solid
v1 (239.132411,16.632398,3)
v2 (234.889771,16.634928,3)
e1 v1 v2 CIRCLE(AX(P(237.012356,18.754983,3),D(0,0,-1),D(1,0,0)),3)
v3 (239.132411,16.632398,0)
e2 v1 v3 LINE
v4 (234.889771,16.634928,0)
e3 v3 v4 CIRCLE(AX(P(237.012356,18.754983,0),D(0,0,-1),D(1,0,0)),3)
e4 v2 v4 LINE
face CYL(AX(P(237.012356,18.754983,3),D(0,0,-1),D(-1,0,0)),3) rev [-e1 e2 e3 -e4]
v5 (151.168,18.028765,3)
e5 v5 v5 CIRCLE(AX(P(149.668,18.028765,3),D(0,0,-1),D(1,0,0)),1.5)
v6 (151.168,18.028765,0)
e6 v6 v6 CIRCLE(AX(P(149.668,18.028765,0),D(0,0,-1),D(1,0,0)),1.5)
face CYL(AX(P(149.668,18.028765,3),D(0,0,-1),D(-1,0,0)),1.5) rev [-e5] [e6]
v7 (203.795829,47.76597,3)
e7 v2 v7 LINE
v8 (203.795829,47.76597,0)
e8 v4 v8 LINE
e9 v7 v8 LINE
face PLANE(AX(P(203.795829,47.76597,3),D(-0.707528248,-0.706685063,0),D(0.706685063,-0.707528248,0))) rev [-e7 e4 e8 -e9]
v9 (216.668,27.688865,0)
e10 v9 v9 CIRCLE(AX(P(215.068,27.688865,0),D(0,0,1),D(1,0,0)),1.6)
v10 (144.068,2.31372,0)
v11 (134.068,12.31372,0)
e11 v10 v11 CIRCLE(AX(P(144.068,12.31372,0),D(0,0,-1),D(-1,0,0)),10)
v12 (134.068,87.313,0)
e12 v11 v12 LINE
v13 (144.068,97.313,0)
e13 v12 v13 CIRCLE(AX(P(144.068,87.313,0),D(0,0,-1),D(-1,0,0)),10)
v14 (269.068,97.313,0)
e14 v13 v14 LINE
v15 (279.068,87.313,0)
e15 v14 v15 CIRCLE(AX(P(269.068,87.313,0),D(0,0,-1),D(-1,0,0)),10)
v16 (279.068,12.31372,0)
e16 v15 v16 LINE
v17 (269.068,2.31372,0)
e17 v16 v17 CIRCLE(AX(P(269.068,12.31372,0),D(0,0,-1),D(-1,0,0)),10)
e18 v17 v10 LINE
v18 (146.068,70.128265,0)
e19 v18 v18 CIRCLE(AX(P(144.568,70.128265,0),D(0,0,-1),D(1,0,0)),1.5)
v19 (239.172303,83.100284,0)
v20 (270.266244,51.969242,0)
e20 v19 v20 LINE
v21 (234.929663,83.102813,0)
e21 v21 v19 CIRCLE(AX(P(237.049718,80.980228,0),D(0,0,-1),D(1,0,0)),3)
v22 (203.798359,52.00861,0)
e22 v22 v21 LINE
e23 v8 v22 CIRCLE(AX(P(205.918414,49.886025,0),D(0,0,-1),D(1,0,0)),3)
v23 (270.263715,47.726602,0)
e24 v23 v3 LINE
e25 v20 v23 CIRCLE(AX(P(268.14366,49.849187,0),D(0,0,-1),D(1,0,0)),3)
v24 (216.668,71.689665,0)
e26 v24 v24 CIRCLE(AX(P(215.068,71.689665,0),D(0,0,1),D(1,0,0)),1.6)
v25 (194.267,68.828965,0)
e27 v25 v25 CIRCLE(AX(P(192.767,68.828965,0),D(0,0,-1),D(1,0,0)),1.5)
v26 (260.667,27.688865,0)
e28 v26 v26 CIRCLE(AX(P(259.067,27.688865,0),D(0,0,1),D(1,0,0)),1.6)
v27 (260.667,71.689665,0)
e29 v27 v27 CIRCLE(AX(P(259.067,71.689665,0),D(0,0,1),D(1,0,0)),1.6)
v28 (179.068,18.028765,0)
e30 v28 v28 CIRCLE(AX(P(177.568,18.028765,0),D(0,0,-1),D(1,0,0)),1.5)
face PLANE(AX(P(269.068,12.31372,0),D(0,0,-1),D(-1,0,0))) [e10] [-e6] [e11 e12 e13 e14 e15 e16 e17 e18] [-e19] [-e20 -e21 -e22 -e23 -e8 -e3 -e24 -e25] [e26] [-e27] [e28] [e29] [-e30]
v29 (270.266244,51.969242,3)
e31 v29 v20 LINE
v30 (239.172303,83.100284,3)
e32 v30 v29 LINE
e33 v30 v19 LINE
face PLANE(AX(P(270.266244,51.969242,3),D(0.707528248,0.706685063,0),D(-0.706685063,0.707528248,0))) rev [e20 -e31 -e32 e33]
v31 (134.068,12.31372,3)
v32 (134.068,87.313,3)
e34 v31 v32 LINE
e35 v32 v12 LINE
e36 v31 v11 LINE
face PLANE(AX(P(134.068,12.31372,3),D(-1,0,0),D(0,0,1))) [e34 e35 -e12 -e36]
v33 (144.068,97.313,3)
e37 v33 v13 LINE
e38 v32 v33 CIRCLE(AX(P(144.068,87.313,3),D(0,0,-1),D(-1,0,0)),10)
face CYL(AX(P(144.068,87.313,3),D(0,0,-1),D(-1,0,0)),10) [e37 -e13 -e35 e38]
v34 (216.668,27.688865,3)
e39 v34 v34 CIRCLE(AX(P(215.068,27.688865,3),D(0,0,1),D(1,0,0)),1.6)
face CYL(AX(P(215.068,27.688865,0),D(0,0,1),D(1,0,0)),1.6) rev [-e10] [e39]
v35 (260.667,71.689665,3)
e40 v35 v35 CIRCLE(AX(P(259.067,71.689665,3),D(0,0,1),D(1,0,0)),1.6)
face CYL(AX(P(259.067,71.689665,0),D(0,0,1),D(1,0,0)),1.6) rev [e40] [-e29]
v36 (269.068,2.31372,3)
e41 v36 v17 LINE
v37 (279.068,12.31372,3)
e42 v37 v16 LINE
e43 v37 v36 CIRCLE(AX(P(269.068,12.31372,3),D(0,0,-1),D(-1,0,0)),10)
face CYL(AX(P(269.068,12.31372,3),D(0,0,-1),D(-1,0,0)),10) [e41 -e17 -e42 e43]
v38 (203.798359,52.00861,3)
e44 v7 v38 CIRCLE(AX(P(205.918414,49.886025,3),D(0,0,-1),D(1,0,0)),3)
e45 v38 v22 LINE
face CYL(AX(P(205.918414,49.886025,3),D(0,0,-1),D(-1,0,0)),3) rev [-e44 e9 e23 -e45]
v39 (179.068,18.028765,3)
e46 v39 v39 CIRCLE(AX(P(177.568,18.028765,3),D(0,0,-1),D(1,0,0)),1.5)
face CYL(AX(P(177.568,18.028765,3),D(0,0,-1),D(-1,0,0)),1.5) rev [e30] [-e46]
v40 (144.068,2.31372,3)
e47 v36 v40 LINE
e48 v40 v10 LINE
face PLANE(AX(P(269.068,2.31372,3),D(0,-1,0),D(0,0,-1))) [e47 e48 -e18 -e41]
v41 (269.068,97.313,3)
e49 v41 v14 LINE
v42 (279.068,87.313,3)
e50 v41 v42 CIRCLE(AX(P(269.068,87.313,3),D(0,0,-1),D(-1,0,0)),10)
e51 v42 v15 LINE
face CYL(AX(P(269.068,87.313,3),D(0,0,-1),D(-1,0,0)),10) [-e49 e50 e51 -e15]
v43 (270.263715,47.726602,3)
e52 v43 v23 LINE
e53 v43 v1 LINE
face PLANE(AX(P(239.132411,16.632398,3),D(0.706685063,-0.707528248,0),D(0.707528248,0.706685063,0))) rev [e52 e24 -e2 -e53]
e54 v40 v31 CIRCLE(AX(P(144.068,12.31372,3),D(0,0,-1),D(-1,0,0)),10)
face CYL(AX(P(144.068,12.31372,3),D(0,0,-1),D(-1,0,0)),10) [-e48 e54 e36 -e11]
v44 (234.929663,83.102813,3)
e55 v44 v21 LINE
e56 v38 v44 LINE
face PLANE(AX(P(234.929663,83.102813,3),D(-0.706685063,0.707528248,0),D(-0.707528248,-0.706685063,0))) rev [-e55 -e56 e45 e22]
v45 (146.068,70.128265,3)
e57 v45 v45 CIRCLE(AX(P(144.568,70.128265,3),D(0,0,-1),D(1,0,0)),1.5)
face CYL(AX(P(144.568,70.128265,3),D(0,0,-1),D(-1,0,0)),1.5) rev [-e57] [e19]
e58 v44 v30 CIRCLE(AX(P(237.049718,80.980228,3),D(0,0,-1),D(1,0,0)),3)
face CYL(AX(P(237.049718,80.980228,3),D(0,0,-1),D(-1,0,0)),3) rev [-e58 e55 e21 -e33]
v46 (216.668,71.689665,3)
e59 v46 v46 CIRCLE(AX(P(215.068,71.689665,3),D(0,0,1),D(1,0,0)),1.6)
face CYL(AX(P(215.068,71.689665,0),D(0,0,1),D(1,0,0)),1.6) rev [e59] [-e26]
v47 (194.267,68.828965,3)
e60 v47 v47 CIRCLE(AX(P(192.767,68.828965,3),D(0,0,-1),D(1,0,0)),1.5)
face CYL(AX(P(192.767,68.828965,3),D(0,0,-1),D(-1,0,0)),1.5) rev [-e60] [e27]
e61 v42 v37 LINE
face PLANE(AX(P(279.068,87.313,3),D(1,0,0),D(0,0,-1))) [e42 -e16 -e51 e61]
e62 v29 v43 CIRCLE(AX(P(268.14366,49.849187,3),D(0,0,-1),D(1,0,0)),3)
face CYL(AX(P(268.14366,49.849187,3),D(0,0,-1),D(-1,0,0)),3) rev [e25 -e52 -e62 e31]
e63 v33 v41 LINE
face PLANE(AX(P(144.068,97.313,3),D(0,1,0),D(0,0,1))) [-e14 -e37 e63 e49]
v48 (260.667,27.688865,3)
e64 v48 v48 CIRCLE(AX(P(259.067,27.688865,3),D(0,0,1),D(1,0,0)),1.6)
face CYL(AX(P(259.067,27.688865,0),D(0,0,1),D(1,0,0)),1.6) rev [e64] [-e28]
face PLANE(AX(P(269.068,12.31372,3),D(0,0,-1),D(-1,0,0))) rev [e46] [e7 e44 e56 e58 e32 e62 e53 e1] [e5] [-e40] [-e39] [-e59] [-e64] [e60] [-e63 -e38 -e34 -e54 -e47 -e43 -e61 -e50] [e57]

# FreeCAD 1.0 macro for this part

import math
import FreeCAD as App
import Part
import Sketcher
Q = App.Units.Quantity

doc = App.newDocument("Part")
body = doc.addObject("PartDesign::Body", "Body")

# Sketch on XY plane
sketch1 = body.newObject("Sketcher::SketchObject", "Sketch")
sketch1.AttachmentSupport = (doc.getObject("XY_Plane"), [""])
sketch1.MapMode = "FlatFace"
sketch1.addGeometry(Part.LineSegment(App.Vector(269.1, 2.3, 0), App.Vector(144.1, 2.3, 0)), False)
sketch1.addGeometry(Part.ArcOfCircle(Part.Circle(App.Vector(144.1, 12.3, 0), App.Vector(0, 0, 1), 10), math.radians(180), math.radians(270)), False)
sketch1.addGeometry(Part.LineSegment(App.Vector(134.1, 12.3, 0), App.Vector(134.1, 87.3, 0)), False)
sketch1.addGeometry(Part.ArcOfCircle(Part.Circle(App.Vector(144.1, 87.3, 0), App.Vector(0, 0, 1), 10), math.radians(90), math.radians(180)), False)
sketch1.addGeometry(Part.LineSegment(App.Vector(144.1, 97.3, 0), App.Vector(269.1, 97.3, 0)), False)
sketch1.addGeometry(Part.ArcOfCircle(Part.Circle(App.Vector(269.1, 87.3, 0), App.Vector(0, 0, 1), 10), math.radians(0), math.radians(90)), False)
sketch1.addGeometry(Part.LineSegment(App.Vector(279.1, 87.3, 0), App.Vector(279.1, 12.3, 0)), False)
sketch1.addGeometry(Part.ArcOfCircle(Part.Circle(App.Vector(269.1, 12.3, 0), App.Vector(0, 0, 1), 10), math.radians(-90), math.radians(0)), False)
sketch1.addGeometry(Part.Circle(App.Vector(259.1, 27.7, 0), App.Vector(0, 0, 1), 1.5), False)
sketch1.addGeometry(Part.Circle(App.Vector(215.1, 27.7, 0), App.Vector(0, 0, 1), 1.5), False)
sketch1.addGeometry(Part.Circle(App.Vector(177.6, 18, 0), App.Vector(0, 0, 1), 1.5), False)
sketch1.addGeometry(Part.Circle(App.Vector(149.7, 18, 0), App.Vector(0, 0, 1), 1.5), False)
sketch1.addGeometry(Part.ArcOfCircle(Part.Circle(App.Vector(268.1, 49.8, 0), App.Vector(0, 0, 1), 3), math.radians(-45), math.radians(45)), False)
sketch1.addGeometry(Part.LineSegment(App.Vector(270.3, 52, 0), App.Vector(239.2, 83.1, 0)), False)
sketch1.addGeometry(Part.ArcOfCircle(Part.Circle(App.Vector(237, 81, 0), App.Vector(0, 0, 1), 3), math.radians(45), math.radians(135)), False)
sketch1.addGeometry(Part.LineSegment(App.Vector(234.9, 83.1, 0), App.Vector(203.8, 52, 0)), False)
sketch1.addGeometry(Part.ArcOfCircle(Part.Circle(App.Vector(205.9, 49.9, 0), App.Vector(0, 0, 1), 3), math.radians(135), math.radians(225)), False)
sketch1.addGeometry(Part.LineSegment(App.Vector(203.8, 47.8, 0), App.Vector(234.9, 16.6, 0)), False)
sketch1.addGeometry(Part.ArcOfCircle(Part.Circle(App.Vector(237, 18.8, 0), App.Vector(0, 0, 1), 3), math.radians(-135), math.radians(-45)), False)
sketch1.addGeometry(Part.LineSegment(App.Vector(239.1, 16.6, 0), App.Vector(270.3, 47.7, 0)), False)
sketch1.addGeometry(Part.Circle(App.Vector(259.1, 71.7, 0), App.Vector(0, 0, 1), 1.5), False)
sketch1.addGeometry(Part.Circle(App.Vector(215.1, 71.7, 0), App.Vector(0, 0, 1), 1.5), False)
sketch1.addGeometry(Part.Circle(App.Vector(192.8, 68.8, 0), App.Vector(0, 0, 1), 1.5), False)
sketch1.addGeometry(Part.Circle(App.Vector(144.6, 70.1, 0), App.Vector(0, 0, 1), 1.5), False)
sketch1.addConstraint(Sketcher.Constraint("Tangent", 0, 2, 1, 2))
sketch1.addConstraint(Sketcher.Constraint("Tangent", 1, 1, 2, 1))
sketch1.addConstraint(Sketcher.Constraint("Tangent", 2, 2, 3, 2))
sketch1.addConstraint(Sketcher.Constraint("Tangent", 3, 1, 4, 1))
sketch1.addConstraint(Sketcher.Constraint("Tangent", 4, 2, 5, 2))
sketch1.addConstraint(Sketcher.Constraint("Tangent", 5, 1, 6, 1))
sketch1.addConstraint(Sketcher.Constraint("Tangent", 6, 2, 7, 2))
sketch1.addConstraint(Sketcher.Constraint("Tangent", 7, 1, 0, 1))
sketch1.addConstraint(Sketcher.Constraint("Tangent", 12, 2, 13, 1))
sketch1.addConstraint(Sketcher.Constraint("Tangent", 13, 2, 14, 1))
sketch1.addConstraint(Sketcher.Constraint("Tangent", 14, 2, 15, 1))
sketch1.addConstraint(Sketcher.Constraint("Tangent", 15, 2, 16, 1))
sketch1.addConstraint(Sketcher.Constraint("Tangent", 16, 2, 17, 1))
sketch1.addConstraint(Sketcher.Constraint("Tangent", 17, 2, 18, 1))
sketch1.addConstraint(Sketcher.Constraint("Tangent", 18, 2, 19, 1))
sketch1.addConstraint(Sketcher.Constraint("Tangent", 19, 2, 12, 1))
sketch1.addConstraint(Sketcher.Constraint("Horizontal", 0))
sketch1.addConstraint(Sketcher.Constraint("Vertical", 2))
sketch1.addConstraint(Sketcher.Constraint("Horizontal", 4))
sketch1.addConstraint(Sketcher.Constraint("Vertical", 6))
sketch1.addConstraint(Sketcher.Constraint("Equal", 1, 3))
sketch1.addConstraint(Sketcher.Constraint("Equal", 3, 5))
sketch1.addConstraint(Sketcher.Constraint("Equal", 5, 7))
sketch1.addConstraint(Sketcher.Constraint("Equal", 8, 9))
sketch1.addConstraint(Sketcher.Constraint("Equal", 9, 10))
sketch1.addConstraint(Sketcher.Constraint("Equal", 10, 11))
sketch1.addConstraint(Sketcher.Constraint("Equal", 12, 14))
sketch1.addConstraint(Sketcher.Constraint("Equal", 14, 16))
sketch1.addConstraint(Sketcher.Constraint("Equal", 16, 18))
sketch1.addConstraint(Sketcher.Constraint("Equal", 11, 20))
sketch1.addConstraint(Sketcher.Constraint("Equal", 20, 21))
sketch1.addConstraint(Sketcher.Constraint("Equal", 21, 22))
sketch1.addConstraint(Sketcher.Constraint("Equal", 22, 23))
sketch1.addConstraint(Sketcher.Constraint("Perpendicular", 13, 15))
sketch1.addConstraint(Sketcher.Constraint("Perpendicular", 15, 17))
sketch1.addConstraint(Sketcher.Constraint("Perpendicular", 17, 19))
sketch1.addConstraint(Sketcher.Constraint("Horizontal", 8, 3, 9, 3))
sketch1.addConstraint(Sketcher.Constraint("Horizontal", 10, 3, 11, 3))
sketch1.addConstraint(Sketcher.Constraint("Horizontal", 20, 3, 21, 3))
sketch1.addConstraint(Sketcher.Constraint("Vertical", 8, 3, 20, 3))
sketch1.addConstraint(Sketcher.Constraint("Vertical", 9, 3, 21, 3))
sketch1.addConstraint(Sketcher.Constraint("Diameter", 8, Q("3 mm")))
sketch1.addConstraint(Sketcher.Constraint("Radius", 1, Q("10 mm")))
sketch1.addConstraint(Sketcher.Constraint("Radius", 12, Q("3 mm")))
sketch1.addConstraint(Sketcher.Constraint("DistanceX", 0, 2, 0, 1, Q("125 mm")))
sketch1.addConstraint(Sketcher.Constraint("DistanceX", 9, 3, 7, 3, Q("54 mm")))
sketch1.addConstraint(Sketcher.Constraint("DistanceX", 23, 3, 10, 3, Q("33 mm")))
sketch1.addConstraint(Sketcher.Constraint("DistanceX", 1, 3, 10, 3, Q("33.5 mm")))
sketch1.addConstraint(Sketcher.Constraint("DistanceX", 1, 3, 11, 3, Q("5.6 mm")))
sketch1.addConstraint(Sketcher.Constraint("DistanceX", -1, 1, 1, 3, Q("144.068 mm")))
sketch1.addConstraint(Sketcher.Constraint("DistanceY", -1, 1, 3, 3, Q("87.313 mm")))
sketch1.addConstraint(Sketcher.Constraint("DistanceX", -1, 1, 8, 3, Q("259.067 mm")))
sketch1.addConstraint(Sketcher.Constraint("DistanceX", -1, 1, 22, 3, Q("192.767 mm")))
sketch1.addConstraint(Sketcher.Constraint("DistanceY", 2, 1, 2, 2, Q("74.99928 mm")))
sketch1.addConstraint(Sketcher.Constraint("DistanceY", -1, 1, 18, 2, Q("16.632398 mm")))
sketch1.addConstraint(Sketcher.Constraint("DistanceY", -1, 1, 19, 2, Q("47.726602 mm")))
sketch1.addConstraint(Sketcher.Constraint("DistanceY", 10, 3, 9, 3, Q("9.6601 mm")))
sketch1.addConstraint(Sketcher.Constraint("DistanceY", 8, 3, 20, 3, Q("44.0008 mm")))
sketch1.addConstraint(Sketcher.Constraint("DistanceY", 22, 3, 21, 3, Q("2.8607 mm")))
sketch1.addConstraint(Sketcher.Constraint("DistanceY", 22, 3, 23, 3, Q("1.2993 mm")))
sketch1.addConstraint(Sketcher.Constraint("DistanceX", -1, 1, 12, 3, Q("268.14366 mm")))
sketch1.addConstraint(Sketcher.Constraint("DistanceY", -1, 1, 14, 3, Q("80.980228 mm")))
sketch1.addConstraint(Sketcher.Constraint("DistanceX", -1, 1, 15, 2, Q("203.798359 mm")))
sketch1.addConstraint(Sketcher.Constraint("DistanceY", 8, 3, 12, 3, Q("22.160321 mm")))
pad1 = body.newObject("PartDesign::Pad", "Pad")
pad1.Profile = sketch1
pad1.Length = 3

# Sketch on XY plane
sketch2 = body.newObject("Sketcher::SketchObject", "Sketch001")
sketch2.AttachmentSupport = (doc.getObject("XY_Plane"), [""])
sketch2.MapMode = "FlatFace"
sketch2.AttachmentOffset = App.Placement(App.Vector(0, 0, 3), App.Rotation())
sketch2.addGeometry(Part.Circle(App.Vector(259.1, 71.7, 0), App.Vector(0, 0, 1), 1.6), False)
sketch2.addGeometry(Part.Circle(App.Vector(215.1, 71.7, 0), App.Vector(0, 0, 1), 1.6), False)
sketch2.addGeometry(Part.Circle(App.Vector(215.1, 27.7, 0), App.Vector(0, 0, 1), 1.6), False)
sketch2.addGeometry(Part.Circle(App.Vector(259.1, 27.7, 0), App.Vector(0, 0, 1), 1.6), False)
sketch2.addConstraint(Sketcher.Constraint("Equal", 0, 1))
sketch2.addConstraint(Sketcher.Constraint("Equal", 1, 2))
sketch2.addConstraint(Sketcher.Constraint("Equal", 2, 3))
sketch2.addConstraint(Sketcher.Constraint("Horizontal", 0, 3, 1, 3))
sketch2.addConstraint(Sketcher.Constraint("Horizontal", 2, 3, 3, 3))
sketch2.addConstraint(Sketcher.Constraint("Vertical", 1, 3, 2, 3))
sketch2.addConstraint(Sketcher.Constraint("Vertical", 0, 3, 3, 3))
sketch2.addConstraint(Sketcher.Constraint("Diameter", 0, Q("3.2 mm")))
sketch2.addConstraint(Sketcher.Constraint("DistanceX", -1, 1, 0, 3, Q("259.067 mm")))
sketch2.addConstraint(Sketcher.Constraint("DistanceX", -1, 1, 1, 3, Q("215.068 mm")))
sketch2.addConstraint(Sketcher.Constraint("DistanceY", 2, 3, 1, 3, Q("44.0008 mm")))
sketch2.addConstraint(Sketcher.Constraint("DistanceY", -1, 1, 0, 3, Q("71.689665 mm")))
pocket1 = body.newObject("PartDesign::Pocket", "Pocket")
pocket1.Profile = sketch2
pocket1.Type = "ThroughAll"

doc.recompute()
